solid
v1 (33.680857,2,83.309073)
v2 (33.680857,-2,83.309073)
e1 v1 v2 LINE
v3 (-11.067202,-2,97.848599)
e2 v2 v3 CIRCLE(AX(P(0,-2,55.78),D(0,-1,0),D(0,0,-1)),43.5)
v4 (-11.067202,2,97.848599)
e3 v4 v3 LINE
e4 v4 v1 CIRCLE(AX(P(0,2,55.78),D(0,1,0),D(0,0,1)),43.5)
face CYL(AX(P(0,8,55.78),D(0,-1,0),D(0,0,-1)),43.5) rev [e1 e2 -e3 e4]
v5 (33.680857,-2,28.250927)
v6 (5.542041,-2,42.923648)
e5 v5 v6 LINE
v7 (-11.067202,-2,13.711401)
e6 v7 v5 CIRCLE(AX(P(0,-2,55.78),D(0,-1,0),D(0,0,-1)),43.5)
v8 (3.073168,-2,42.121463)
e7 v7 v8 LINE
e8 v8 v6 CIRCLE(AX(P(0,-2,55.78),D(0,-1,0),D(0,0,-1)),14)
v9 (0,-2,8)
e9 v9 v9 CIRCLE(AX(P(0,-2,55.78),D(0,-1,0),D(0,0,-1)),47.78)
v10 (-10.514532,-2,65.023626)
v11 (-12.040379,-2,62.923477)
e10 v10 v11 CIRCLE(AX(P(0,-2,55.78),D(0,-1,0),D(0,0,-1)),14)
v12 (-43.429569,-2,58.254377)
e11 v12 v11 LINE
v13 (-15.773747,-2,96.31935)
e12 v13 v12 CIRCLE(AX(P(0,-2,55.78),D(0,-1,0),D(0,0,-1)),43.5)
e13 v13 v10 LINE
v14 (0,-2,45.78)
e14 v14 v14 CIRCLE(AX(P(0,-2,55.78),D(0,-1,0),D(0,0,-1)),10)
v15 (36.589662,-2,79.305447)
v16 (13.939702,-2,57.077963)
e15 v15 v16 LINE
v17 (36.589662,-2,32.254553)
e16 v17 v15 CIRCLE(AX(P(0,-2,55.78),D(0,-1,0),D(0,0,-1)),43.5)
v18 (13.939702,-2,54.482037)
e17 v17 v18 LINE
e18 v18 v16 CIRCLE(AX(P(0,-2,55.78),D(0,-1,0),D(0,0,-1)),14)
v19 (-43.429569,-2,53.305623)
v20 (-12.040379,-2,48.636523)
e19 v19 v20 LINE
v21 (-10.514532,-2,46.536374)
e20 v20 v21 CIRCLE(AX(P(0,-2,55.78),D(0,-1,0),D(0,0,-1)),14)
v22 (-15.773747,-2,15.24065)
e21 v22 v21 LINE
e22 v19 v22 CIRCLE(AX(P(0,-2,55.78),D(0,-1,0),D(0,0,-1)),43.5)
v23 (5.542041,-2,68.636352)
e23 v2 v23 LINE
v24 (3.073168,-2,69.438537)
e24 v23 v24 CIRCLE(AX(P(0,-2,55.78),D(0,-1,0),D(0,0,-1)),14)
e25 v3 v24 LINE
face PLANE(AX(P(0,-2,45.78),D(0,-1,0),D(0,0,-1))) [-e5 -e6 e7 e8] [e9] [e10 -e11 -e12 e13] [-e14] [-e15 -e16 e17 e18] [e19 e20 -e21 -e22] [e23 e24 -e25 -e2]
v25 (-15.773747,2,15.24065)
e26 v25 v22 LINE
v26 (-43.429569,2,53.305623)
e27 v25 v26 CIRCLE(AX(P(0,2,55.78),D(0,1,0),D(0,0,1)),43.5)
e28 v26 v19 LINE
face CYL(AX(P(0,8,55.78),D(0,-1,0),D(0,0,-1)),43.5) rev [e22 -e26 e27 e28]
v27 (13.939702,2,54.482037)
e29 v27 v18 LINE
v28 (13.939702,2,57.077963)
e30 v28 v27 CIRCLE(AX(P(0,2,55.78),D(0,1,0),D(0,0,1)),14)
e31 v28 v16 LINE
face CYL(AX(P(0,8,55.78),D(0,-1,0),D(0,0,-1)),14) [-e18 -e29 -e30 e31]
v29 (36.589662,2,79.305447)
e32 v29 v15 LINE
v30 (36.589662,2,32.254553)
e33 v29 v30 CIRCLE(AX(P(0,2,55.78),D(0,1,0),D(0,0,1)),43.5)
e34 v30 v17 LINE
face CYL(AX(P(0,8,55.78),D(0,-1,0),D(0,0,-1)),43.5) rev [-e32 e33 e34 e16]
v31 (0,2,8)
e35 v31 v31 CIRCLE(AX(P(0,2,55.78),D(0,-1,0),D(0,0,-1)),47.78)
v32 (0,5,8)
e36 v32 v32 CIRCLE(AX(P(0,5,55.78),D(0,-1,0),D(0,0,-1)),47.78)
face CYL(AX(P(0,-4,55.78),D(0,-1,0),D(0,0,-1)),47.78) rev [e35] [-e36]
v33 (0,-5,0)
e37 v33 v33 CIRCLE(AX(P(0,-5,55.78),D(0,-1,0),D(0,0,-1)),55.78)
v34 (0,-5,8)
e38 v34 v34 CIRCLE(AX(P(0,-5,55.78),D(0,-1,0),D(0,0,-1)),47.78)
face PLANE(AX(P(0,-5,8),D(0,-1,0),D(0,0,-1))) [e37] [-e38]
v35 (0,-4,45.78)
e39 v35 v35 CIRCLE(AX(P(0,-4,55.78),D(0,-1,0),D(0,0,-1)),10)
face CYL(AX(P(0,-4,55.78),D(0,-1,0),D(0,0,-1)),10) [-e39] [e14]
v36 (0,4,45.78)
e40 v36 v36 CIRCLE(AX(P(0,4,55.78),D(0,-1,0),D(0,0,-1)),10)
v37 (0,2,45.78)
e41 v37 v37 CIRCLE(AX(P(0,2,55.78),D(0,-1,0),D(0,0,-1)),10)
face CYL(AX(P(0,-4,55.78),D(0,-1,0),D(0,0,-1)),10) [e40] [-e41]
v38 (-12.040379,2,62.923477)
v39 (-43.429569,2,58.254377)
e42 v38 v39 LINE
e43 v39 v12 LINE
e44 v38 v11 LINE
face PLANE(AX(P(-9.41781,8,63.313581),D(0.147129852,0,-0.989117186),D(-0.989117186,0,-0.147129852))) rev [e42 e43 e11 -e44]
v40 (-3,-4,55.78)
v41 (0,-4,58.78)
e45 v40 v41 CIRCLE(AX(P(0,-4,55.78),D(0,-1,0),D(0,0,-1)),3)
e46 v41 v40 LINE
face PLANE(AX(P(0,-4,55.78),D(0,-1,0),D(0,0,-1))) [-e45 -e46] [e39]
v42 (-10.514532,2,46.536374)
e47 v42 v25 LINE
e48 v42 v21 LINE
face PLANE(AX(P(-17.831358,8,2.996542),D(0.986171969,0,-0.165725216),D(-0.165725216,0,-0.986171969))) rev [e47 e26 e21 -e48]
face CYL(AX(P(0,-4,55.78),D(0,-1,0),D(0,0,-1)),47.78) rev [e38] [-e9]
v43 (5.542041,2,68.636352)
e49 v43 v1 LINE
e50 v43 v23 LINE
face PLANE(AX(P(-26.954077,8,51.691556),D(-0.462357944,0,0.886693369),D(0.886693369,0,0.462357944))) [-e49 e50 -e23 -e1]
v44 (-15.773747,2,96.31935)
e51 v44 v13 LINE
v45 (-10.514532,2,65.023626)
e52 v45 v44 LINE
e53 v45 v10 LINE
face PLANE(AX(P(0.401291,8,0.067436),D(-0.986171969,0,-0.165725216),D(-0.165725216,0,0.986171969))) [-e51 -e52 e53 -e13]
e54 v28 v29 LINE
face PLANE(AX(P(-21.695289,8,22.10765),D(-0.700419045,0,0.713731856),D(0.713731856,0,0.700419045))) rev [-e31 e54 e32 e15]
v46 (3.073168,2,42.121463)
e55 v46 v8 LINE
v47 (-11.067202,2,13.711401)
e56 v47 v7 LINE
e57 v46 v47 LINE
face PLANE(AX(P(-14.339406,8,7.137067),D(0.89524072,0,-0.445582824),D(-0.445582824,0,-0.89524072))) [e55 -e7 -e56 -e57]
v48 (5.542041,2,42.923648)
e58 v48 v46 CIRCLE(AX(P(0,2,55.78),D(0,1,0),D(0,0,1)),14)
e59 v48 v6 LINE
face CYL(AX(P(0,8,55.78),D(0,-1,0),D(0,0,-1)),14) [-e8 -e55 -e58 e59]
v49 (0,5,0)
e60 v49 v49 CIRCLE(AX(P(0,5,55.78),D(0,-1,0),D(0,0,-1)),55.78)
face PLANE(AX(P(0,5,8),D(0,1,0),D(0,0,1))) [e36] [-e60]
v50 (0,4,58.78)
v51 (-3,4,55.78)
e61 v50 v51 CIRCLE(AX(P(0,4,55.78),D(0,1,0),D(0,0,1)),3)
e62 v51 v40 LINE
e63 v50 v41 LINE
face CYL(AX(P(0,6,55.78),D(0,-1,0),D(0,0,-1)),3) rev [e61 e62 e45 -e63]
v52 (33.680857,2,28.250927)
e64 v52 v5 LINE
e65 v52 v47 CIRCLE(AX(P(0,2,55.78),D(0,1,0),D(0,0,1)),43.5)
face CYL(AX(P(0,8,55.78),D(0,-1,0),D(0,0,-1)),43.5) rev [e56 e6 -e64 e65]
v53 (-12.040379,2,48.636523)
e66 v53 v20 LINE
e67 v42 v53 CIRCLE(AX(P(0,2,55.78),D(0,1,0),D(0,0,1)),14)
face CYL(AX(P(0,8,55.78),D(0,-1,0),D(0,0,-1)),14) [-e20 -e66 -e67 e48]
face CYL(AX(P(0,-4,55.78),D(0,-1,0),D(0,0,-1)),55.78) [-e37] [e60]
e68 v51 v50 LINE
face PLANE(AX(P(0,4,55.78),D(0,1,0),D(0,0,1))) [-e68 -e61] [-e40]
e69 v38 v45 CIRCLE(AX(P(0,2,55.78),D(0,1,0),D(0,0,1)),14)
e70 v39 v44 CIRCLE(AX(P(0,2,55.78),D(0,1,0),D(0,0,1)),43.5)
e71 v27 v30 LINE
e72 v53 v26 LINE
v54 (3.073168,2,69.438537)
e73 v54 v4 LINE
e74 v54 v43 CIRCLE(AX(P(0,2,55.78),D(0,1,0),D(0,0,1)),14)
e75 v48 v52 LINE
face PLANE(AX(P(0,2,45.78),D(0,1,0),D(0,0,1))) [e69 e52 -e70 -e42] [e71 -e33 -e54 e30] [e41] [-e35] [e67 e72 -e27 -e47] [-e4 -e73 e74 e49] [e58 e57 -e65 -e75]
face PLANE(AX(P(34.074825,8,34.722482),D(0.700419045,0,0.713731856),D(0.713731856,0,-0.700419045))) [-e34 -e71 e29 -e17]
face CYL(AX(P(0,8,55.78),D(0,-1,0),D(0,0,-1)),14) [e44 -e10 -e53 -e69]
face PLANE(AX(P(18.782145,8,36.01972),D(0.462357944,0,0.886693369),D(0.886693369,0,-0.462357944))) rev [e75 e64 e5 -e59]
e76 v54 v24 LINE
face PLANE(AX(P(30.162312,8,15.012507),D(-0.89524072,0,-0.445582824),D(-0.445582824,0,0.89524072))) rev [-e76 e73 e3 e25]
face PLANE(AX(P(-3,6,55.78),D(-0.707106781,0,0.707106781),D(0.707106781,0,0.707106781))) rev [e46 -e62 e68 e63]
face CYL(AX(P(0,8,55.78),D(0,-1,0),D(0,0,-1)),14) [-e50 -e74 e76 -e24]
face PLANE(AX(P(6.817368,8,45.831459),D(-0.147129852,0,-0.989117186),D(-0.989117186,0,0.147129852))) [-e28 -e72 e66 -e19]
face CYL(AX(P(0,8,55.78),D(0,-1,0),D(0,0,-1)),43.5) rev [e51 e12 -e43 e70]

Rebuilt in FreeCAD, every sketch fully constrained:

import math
import FreeCAD as App
import Part
import Sketcher
Q = App.Units.Quantity


def add_polygon(sketch, points):
    """Adds a closed chain of lines whose ends are joined by coincident constraints."""
    first, n = sketch.GeometryCount, len(points)
    for a, b in zip(points, points[1:] + points[:1]):
        sketch.addGeometry(Part.LineSegment(App.Vector(*a, 0), App.Vector(*b, 0)), False)
    for i in range(n):
        sketch.addConstraint(Sketcher.Constraint("Coincident", first + i, 2, first + (i + 1) % n, 1))

doc = App.newDocument("Part")
body = doc.addObject("PartDesign::Body", "Body")

sketch1 = body.newObject("Sketcher::SketchObject", "Sketch")
sketch1.AttachmentSupport = (doc.getObject("YZ_Plane"), [""])
sketch1.MapMode = "FlatFace"
add_polygon(sketch1, [(4, 55.8), (-4, 55.8), (-4, 45.8), (-2, 45.8), (-2, 8), (-5, 8), (-5, 0), (5, 0), (5, 8), (2, 8), (2, 45.8), (4, 45.8)])
sketch1.addGeometry(Part.LineSegment(App.Vector(-5, 55.8, 0), App.Vector(5, 55.8, 0)), True)
sketch1.addConstraint([
    Sketcher.Constraint("Horizontal", 0),
    Sketcher.Constraint("Vertical", 1),
    Sketcher.Constraint("Horizontal", 2),
    Sketcher.Constraint("Vertical", 3),
    Sketcher.Constraint("Horizontal", 4),
    Sketcher.Constraint("Vertical", 5),
    Sketcher.Constraint("Horizontal", 6),
    Sketcher.Constraint("Vertical", 7),
    Sketcher.Constraint("Horizontal", 8),
    Sketcher.Constraint("Vertical", 9),
    Sketcher.Constraint("Horizontal", 10),
    Sketcher.Constraint("Vertical", 11),
    Sketcher.Constraint("Horizontal", 12),
    Sketcher.Constraint("Symmetric", 5, 2, 6, 2, -1, 1),
    Sketcher.Constraint("Symmetric", 3, 2, 8, 2, -2),
    Sketcher.Constraint("Symmetric", 1, 2, 10, 2, -2),
    Sketcher.Constraint("Horizontal", 11, 2, 12, 1),
    Sketcher.Constraint("Vertical", 5, 2, 12, 1),
    Sketcher.Constraint("Vertical", 7, 2, 12, 2),
    Sketcher.Constraint("Equal", 12, 1),
    Sketcher.Constraint("Equal", 0, 5),
    Sketcher.Constraint("DistanceX", 0, 2, 0, 1, Q("8 mm")),
    Sketcher.Constraint("DistanceX", 2, 1, 2, 2, Q("2 mm")),
    Sketcher.Constraint("DistanceX", 4, 2, 4, 1, Q("3 mm")),
    Sketcher.Constraint("DistanceY", 3, 2, 3, 1, Q("37.78 mm")),
])
revolution = body.newObject("PartDesign::Revolution", "Revolution")
revolution.Profile = sketch1
revolution.ReferenceAxis = (sketch1, ["Axis0"])
revolution.Angle = 360

sketch2 = body.newObject("Sketcher::SketchObject", "Sketch001")
sketch2.AttachmentSupport = (doc.getObject("XZ_Plane"), [""])
sketch2.MapMode = "FlatFace"
sketch2.AttachmentOffset = App.Placement(App.Vector(0, 0, 4), App.Rotation())
sketch2.addGeometry([
    Part.LineSegment(App.Vector(0, 58.8, 0), App.Vector(-3, 55.8, 0)),
    Part.ArcOfCircle(Part.Circle(App.Vector(0, 55.8, 0), App.Vector(0, 0, 1), 3), math.radians(180), math.radians(450)),
], False)
sketch2.addConstraint([
    Sketcher.Constraint("Coincident", 0, 1, 1, 2),
    Sketcher.Constraint("Coincident", 1, 1, 0, 2),
    Sketcher.Constraint("PointOnObject", 1, 3, -2),
    Sketcher.Constraint("PointOnObject", 0, 1, -2),
    Sketcher.Constraint("Radius", 1, Q("3 mm")),
    Sketcher.Constraint("Angle", 0, Q("-135 deg")),
    Sketcher.Constraint("DistanceY", -1, 1, 1, 3, Q("55.78 mm")),
])
pocket1 = body.newObject("PartDesign::Pocket", "Pocket")
pocket1.Profile = sketch2
pocket1.Length = 10

sketch3 = body.newObject("Sketcher::SketchObject", "Sketch002")
sketch3.AttachmentSupport = (doc.getObject("XZ_Plane"), [""])
sketch3.MapMode = "FlatFace"
sketch3.AttachmentOffset = App.Placement(App.Vector(0, 0, 2), App.Rotation())
sketch3.addGeometry([
    Part.LineSegment(App.Vector(-12, 48.6, 0), App.Vector(-43.4, 53.3, 0)),
    Part.ArcOfCircle(Part.Circle(App.Vector(0, 55.8, 0), App.Vector(0, 0, 1), 43.5), math.radians(-177), math.radians(-111)),
    Part.LineSegment(App.Vector(-15.8, 15.2, 0), App.Vector(-10.5, 46.5, 0)),
    Part.ArcOfCircle(Part.Circle(App.Vector(0, 55.8, 0), App.Vector(0, 0, 1), 14), math.radians(-149.32), math.radians(-138.68)),
    Part.ArcOfCircle(Part.Circle(App.Vector(0, 55.8, 0), App.Vector(0, 0, 1), 43.5), math.radians(111), math.radians(177)),
    Part.LineSegment(App.Vector(-43.4, 58.3, 0), App.Vector(-12, 62.9, 0)),
    Part.ArcOfCircle(Part.Circle(App.Vector(0, 55.8, 0), App.Vector(0, 0, 1), 14), math.radians(138.68), math.radians(149.32)),
    Part.LineSegment(App.Vector(-10.5, 65, 0), App.Vector(-15.8, 96.3, 0)),
    Part.ArcOfCircle(Part.Circle(App.Vector(0, 55.8, 0), App.Vector(0, 0, 1), 43.5), math.radians(39), math.radians(105)),
    Part.LineSegment(App.Vector(-11.1, 97.8, 0), App.Vector(3.1, 69.4, 0)),
    Part.ArcOfCircle(Part.Circle(App.Vector(0, 55.8, 0), App.Vector(0, 0, 1), 14), math.radians(66.68), math.radians(77.32)),
    Part.LineSegment(App.Vector(5.5, 68.6, 0), App.Vector(33.7, 83.3, 0)),
    Part.ArcOfCircle(Part.Circle(App.Vector(0, 55.8, 0), App.Vector(0, 0, 1), 43.5), math.radians(-33), math.radians(33)),
    Part.LineSegment(App.Vector(36.6, 79.3, 0), App.Vector(13.9, 57.1, 0)),
    Part.ArcOfCircle(Part.Circle(App.Vector(0, 55.8, 0), App.Vector(0, 0, 1), 14), math.radians(-5.32), math.radians(5.32)),
    Part.LineSegment(App.Vector(13.9, 54.5, 0), App.Vector(36.6, 32.3, 0)),
    Part.LineSegment(App.Vector(3.1, 42.1, 0), App.Vector(-11.1, 13.7, 0)),
    Part.ArcOfCircle(Part.Circle(App.Vector(0, 55.8, 0), App.Vector(0, 0, 1), 43.5), math.radians(-105), math.radians(-39)),
    Part.LineSegment(App.Vector(33.7, 28.3, 0), App.Vector(5.5, 42.9, 0)),
    Part.ArcOfCircle(Part.Circle(App.Vector(0, 55.8, 0), App.Vector(0, 0, 1), 14), math.radians(-77.32), math.radians(-66.68)),
], False)
sketch3.addConstraint([
    Sketcher.Constraint("Coincident", 0, 2, 1, 1),
    Sketcher.Constraint("Coincident", 1, 2, 2, 1),
    Sketcher.Constraint("Coincident", 2, 2, 3, 2),
    Sketcher.Constraint("Coincident", 3, 1, 0, 1),
    Sketcher.Constraint("Coincident", 4, 2, 5, 1),
    Sketcher.Constraint("Coincident", 5, 2, 6, 2),
    Sketcher.Constraint("Coincident", 6, 1, 7, 1),
    Sketcher.Constraint("Coincident", 7, 2, 4, 1),
    Sketcher.Constraint("Coincident", 8, 2, 9, 1),
    Sketcher.Constraint("Coincident", 9, 2, 10, 2),
    Sketcher.Constraint("Coincident", 10, 1, 11, 1),
    Sketcher.Constraint("Coincident", 11, 2, 8, 1),
    Sketcher.Constraint("Coincident", 12, 2, 13, 1),
    Sketcher.Constraint("Coincident", 13, 2, 14, 2),
    Sketcher.Constraint("Coincident", 14, 1, 15, 1),
    Sketcher.Constraint("Coincident", 15, 2, 12, 1),
    Sketcher.Constraint("Coincident", 16, 2, 17, 1),
    Sketcher.Constraint("Coincident", 17, 2, 18, 1),
    Sketcher.Constraint("Coincident", 18, 2, 19, 2),
    Sketcher.Constraint("Coincident", 19, 1, 16, 1),
    Sketcher.Constraint("Coincident", 3, 3, 1, 3),
    Sketcher.Constraint("Coincident", 4, 3, 1, 3),
    Sketcher.Constraint("Coincident", 6, 3, 1, 3),
    Sketcher.Constraint("Coincident", 8, 3, 1, 3),
    Sketcher.Constraint("Coincident", 10, 3, 1, 3),
    Sketcher.Constraint("Coincident", 12, 3, 1, 3),
    Sketcher.Constraint("Coincident", 14, 3, 1, 3),
    Sketcher.Constraint("Coincident", 17, 3, 1, 3),
    Sketcher.Constraint("Coincident", 19, 3, 1, 3),
    Sketcher.Constraint("Equal", 1, 4),
    Sketcher.Constraint("Equal", 3, 6),
    Sketcher.Constraint("Equal", 4, 8),
    Sketcher.Constraint("Equal", 6, 10),
    Sketcher.Constraint("Equal", 8, 12),
    Sketcher.Constraint("Equal", 10, 14),
    Sketcher.Constraint("Equal", 12, 17),
    Sketcher.Constraint("Equal", 14, 19),
    Sketcher.Constraint("PointOnObject", 1, 3, -2),
    Sketcher.Constraint("Vertical", 0, 2, 4, 2),
    Sketcher.Constraint("Vertical", 3, 1, 5, 2),
    Sketcher.Constraint("Vertical", 2, 2, 6, 1),
    Sketcher.Constraint("Vertical", 1, 2, 7, 2),
    Sketcher.Constraint("Vertical", 13, 2, 14, 1),
    Sketcher.Constraint("Vertical", 12, 2, 15, 2),
    Sketcher.Constraint("Vertical", 8, 2, 16, 2),
    Sketcher.Constraint("Vertical", 11, 2, 17, 2),
    Sketcher.Constraint("Vertical", 10, 1, 18, 2),
    Sketcher.Constraint("Vertical", 9, 2, 19, 1),
    Sketcher.Constraint("Equal", 0, 2),
    Sketcher.Constraint("Equal", 7, 9),
    Sketcher.Constraint("Equal", 9, 11),
    Sketcher.Constraint("Equal", 11, 13),
    Sketcher.Constraint("Radius", 3, Q("14 mm")),
    Sketcher.Constraint("Radius", 1, Q("43.5 mm")),
    Sketcher.Constraint("DistanceY", -1, 1, 1, 3, Q("55.78 mm")),
    Sketcher.Constraint("DistanceY", -1, 1, 8, 2, Q("97.848599 mm")),
    Sketcher.Constraint("DistanceX", -1, 1, 13, 2, Q("13.939702 mm")),
    Sketcher.Constraint("Distance", 0, Q("31.734551 mm")),
    Sketcher.Constraint("DistanceX", 0, 2, -1, 1, Q("43.429569 mm")),
    Sketcher.Constraint("DistanceY", -1, 1, 1, 2, Q("15.24065 mm")),
    Sketcher.Constraint("DistanceX", -1, 1, 10, 1, Q("5.542041 mm")),
])
pocket2 = body.newObject("PartDesign::Pocket", "Pocket001")
pocket2.Profile = sketch3
pocket2.Length = 10

doc.recompute()
